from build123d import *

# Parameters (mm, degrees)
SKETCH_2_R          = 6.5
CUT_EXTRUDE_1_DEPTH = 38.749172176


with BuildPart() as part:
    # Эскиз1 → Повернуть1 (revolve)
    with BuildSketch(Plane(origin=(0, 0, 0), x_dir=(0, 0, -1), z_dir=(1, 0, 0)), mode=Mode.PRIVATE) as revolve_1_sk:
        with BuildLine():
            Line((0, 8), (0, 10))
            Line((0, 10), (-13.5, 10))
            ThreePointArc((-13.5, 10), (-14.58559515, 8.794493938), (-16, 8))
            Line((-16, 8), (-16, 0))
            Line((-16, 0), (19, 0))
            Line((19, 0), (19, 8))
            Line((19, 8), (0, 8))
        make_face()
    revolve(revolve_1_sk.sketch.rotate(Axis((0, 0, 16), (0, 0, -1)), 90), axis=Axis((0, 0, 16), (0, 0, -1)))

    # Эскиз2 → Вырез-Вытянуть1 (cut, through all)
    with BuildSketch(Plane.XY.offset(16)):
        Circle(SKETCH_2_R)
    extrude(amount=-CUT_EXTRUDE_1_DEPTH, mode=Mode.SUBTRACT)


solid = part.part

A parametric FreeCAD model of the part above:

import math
import FreeCAD as App
import Part
import Sketcher

V = App.Vector
Q = App.Units.Quantity

doc = App.newDocument("Part")
body = doc.addObject("PartDesign::Body", "Body")

# Sketch on YZ plane
sketch1 = body.newObject("Sketcher::SketchObject", "Sketch")
sketch1.AttachmentSupport = (doc.getObject("YZ_Plane"), [""])
sketch1.MapMode = "FlatFace"
sketch1.addGeometry(Part.LineSegment(V(8, 0, 0), V(10, 0, 0)), False)
sketch1.addGeometry(Part.LineSegment(V(10, 0, 0), V(10, 13.5, 0)), False)
sketch1.addGeometry(Part.ArcOfCircle(Part.Circle(V(12.7, 17.7, 0), V(0, 0, 1), 5), math.radians(-160), math.radians(-123)), False)
sketch1.addGeometry(Part.LineSegment(V(8, 16, 0), V(0, 16, 0)), False)
sketch1.addGeometry(Part.LineSegment(V(0, 16, 0), V(0, -19, 0)), False)
sketch1.addGeometry(Part.LineSegment(V(0, -19, 0), V(8, -19, 0)), False)
sketch1.addGeometry(Part.LineSegment(V(8, -19, 0), V(8, 0, 0)), False)
sketch1.addConstraint(Sketcher.Constraint("Coincident", 0, 2, 1, 1))
sketch1.addConstraint(Sketcher.Constraint("Coincident", 1, 2, 2, 2))
sketch1.addConstraint(Sketcher.Constraint("Coincident", 2, 1, 3, 1))
sketch1.addConstraint(Sketcher.Constraint("Coincident", 3, 2, 4, 1))
sketch1.addConstraint(Sketcher.Constraint("Coincident", 4, 2, 5, 1))
sketch1.addConstraint(Sketcher.Constraint("Coincident", 5, 2, 6, 1))
sketch1.addConstraint(Sketcher.Constraint("Coincident", 6, 2, 0, 1))
sketch1.addConstraint(Sketcher.Constraint("Horizontal", 0))
sketch1.addConstraint(Sketcher.Constraint("Vertical", 1))
sketch1.addConstraint(Sketcher.Constraint("Horizontal", 3))
sketch1.addConstraint(Sketcher.Constraint("Vertical", 4))
sketch1.addConstraint(Sketcher.Constraint("Horizontal", 5))
sketch1.addConstraint(Sketcher.Constraint("Vertical", 6))
sketch1.addConstraint(Sketcher.Constraint("PointOnObject", 0, 2, -1))
sketch1.addConstraint(Sketcher.Constraint("PointOnObject", 3, 2, -2))
sketch1.addConstraint(Sketcher.Constraint("Vertical", 2, 1, 5, 2))
sketch1.addConstraint(Sketcher.Constraint("Radius", 2, Q("5 mm")))
sketch1.addConstraint(Sketcher.Constraint("DistanceX", 0, 1, 0, 2, Q("2 mm")))
sketch1.addConstraint(Sketcher.Constraint("DistanceX", 3, 2, 3, 1, Q("8 mm")))
sketch1.addConstraint(Sketcher.Constraint("DistanceY", 4, 2, 4, 1, Q("35 mm")))
sketch1.addConstraint(Sketcher.Constraint("DistanceY", 6, 1, 6, 2, Q("19 mm")))
sketch1.addConstraint(Sketcher.Constraint("DistanceY", 1, 1, 1, 2, Q("13.5 mm")))
revolution = body.newObject("PartDesign::Revolution", "Revolution")
revolution.Profile = sketch1
revolution.ReferenceAxis = (sketch1, ["V_Axis"])
revolution.Angle = 360

# Sketch on XY plane
sketch2 = body.newObject("Sketcher::SketchObject", "Sketch001")
sketch2.AttachmentSupport = (doc.getObject("XY_Plane"), [""])
sketch2.MapMode = "FlatFace"
sketch2.AttachmentOffset = App.Placement(V(0, 0, 16), App.Rotation())
sketch2.addGeometry(Part.Circle(V(0, 0, 0), V(0, 0, 1), 6), False)
sketch2.addConstraint(Sketcher.Constraint("Coincident", 0, 3, -1, 1))
sketch2.addConstraint(Sketcher.Constraint("Diameter", 0, Q("13 mm")))
pocket1 = body.newObject("PartDesign::Pocket", "Pocket")
pocket1.Profile = sketch2
pocket1.Type = "ThroughAll"

doc.recompute()
